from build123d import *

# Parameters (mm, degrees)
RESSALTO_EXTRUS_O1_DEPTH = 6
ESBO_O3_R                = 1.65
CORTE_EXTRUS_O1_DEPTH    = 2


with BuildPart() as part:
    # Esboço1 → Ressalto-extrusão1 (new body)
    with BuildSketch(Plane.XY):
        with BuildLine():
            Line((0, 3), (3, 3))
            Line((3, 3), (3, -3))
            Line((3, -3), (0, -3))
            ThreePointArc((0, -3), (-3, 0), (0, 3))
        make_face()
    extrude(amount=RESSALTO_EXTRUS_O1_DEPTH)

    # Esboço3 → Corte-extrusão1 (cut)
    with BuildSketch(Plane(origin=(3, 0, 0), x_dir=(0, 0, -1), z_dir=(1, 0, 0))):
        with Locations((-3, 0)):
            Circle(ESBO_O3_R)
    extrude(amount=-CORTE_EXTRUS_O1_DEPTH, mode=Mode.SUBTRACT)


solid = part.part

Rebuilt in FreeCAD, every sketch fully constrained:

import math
import FreeCAD as App
import Part
import Sketcher
from FreeCAD import Vector

doc = App.newDocument("Part")
params = doc.addObject("Spreadsheet::Sheet", "Params")
for row, (alias, value) in enumerate([
    ("sketch1_radius", "3 mm"),
    ("sketch1_width", "3 mm"),
    ("pad1_length", "6 mm"),
    ("sketch2_diameter", "3.3 mm"),
    ("pocket1_length", "2 mm"),
], start=1):
    params.set(f"A{row}", alias)
    params.set(f"B{row}", "=" + value)
    params.setAlias(f"B{row}", alias)

body = doc.addObject("PartDesign::Body", "Body")

# Sketch on XY plane
sketch1 = body.newObject("Sketcher::SketchObject", "Sketch")
sketch1.AttachmentSupport = (doc.getObject("XY_Plane"), [""])
sketch1.MapMode = "FlatFace"
sketch1.addGeometry(Part.LineSegment(Vector(3, 3, 0), Vector(0, 3, 0)), False)
sketch1.addGeometry(Part.ArcOfCircle(Part.Circle(Vector(0, 0, 0), Vector(0, 0, 1), 3), math.radians(90), math.radians(270)), False)
sketch1.addGeometry(Part.LineSegment(Vector(0, -3, 0), Vector(3, -3, 0)), False)
sketch1.addGeometry(Part.LineSegment(Vector(3, -3, 0), Vector(3, 3, 0)), False)
sketch1.addConstraint(Sketcher.Constraint("Tangent", 0, 2, 1, 1))
sketch1.addConstraint(Sketcher.Constraint("Tangent", 1, 2, 2, 1))
sketch1.addConstraint(Sketcher.Constraint("Coincident", 2, 2, 3, 1))
sketch1.addConstraint(Sketcher.Constraint("Coincident", 3, 2, 0, 1))
sketch1.addConstraint(Sketcher.Constraint("Horizontal", 0))
sketch1.addConstraint(Sketcher.Constraint("Horizontal", 2))
sketch1.addConstraint(Sketcher.Constraint("Vertical", 3))
sketch1.addConstraint(Sketcher.Constraint("Coincident", 1, 3, -1, 1))
sketch1.addConstraint(Sketcher.Constraint("Radius", 1, 3.0))
sketch1.addConstraint(Sketcher.Constraint("DistanceX", 0, 2, 0, 1, 3.0))
sketch1.setExpression("Constraints[8]", "Params.sketch1_radius")
sketch1.setExpression("Constraints[9]", "Params.sketch1_width")
pad1 = body.newObject("PartDesign::Pad", "Pad")
pad1.Profile = sketch1
pad1.setExpression("Length", "Params.pad1_length")

# Sketch on YZ plane
sketch2 = body.newObject("Sketcher::SketchObject", "Sketch001")
sketch2.AttachmentSupport = (doc.getObject("YZ_Plane"), [""])
sketch2.MapMode = "FlatFace"
sketch2.AttachmentOffset = App.Placement(Vector(0, 0, 3), App.Rotation())
sketch2.addGeometry(Part.Circle(Vector(0, 3, 0), Vector(0, 0, 1), 1.6), False)
sketch2.addConstraint(Sketcher.Constraint("PointOnObject", 0, 3, -2))
sketch2.addConstraint(Sketcher.Constraint("Diameter", 0, 3.3))
sketch2.addConstraint(Sketcher.Constraint("DistanceY", -1, 1, 0, 3, 3.0))
sketch2.setExpression("Constraints[1]", "Params.sketch2_diameter")
pocket1 = body.newObject("PartDesign::Pocket", "Pocket")
pocket1.Profile = sketch2
pocket1.setExpression("Length", "Params.pocket1_length")

doc.recompute()
